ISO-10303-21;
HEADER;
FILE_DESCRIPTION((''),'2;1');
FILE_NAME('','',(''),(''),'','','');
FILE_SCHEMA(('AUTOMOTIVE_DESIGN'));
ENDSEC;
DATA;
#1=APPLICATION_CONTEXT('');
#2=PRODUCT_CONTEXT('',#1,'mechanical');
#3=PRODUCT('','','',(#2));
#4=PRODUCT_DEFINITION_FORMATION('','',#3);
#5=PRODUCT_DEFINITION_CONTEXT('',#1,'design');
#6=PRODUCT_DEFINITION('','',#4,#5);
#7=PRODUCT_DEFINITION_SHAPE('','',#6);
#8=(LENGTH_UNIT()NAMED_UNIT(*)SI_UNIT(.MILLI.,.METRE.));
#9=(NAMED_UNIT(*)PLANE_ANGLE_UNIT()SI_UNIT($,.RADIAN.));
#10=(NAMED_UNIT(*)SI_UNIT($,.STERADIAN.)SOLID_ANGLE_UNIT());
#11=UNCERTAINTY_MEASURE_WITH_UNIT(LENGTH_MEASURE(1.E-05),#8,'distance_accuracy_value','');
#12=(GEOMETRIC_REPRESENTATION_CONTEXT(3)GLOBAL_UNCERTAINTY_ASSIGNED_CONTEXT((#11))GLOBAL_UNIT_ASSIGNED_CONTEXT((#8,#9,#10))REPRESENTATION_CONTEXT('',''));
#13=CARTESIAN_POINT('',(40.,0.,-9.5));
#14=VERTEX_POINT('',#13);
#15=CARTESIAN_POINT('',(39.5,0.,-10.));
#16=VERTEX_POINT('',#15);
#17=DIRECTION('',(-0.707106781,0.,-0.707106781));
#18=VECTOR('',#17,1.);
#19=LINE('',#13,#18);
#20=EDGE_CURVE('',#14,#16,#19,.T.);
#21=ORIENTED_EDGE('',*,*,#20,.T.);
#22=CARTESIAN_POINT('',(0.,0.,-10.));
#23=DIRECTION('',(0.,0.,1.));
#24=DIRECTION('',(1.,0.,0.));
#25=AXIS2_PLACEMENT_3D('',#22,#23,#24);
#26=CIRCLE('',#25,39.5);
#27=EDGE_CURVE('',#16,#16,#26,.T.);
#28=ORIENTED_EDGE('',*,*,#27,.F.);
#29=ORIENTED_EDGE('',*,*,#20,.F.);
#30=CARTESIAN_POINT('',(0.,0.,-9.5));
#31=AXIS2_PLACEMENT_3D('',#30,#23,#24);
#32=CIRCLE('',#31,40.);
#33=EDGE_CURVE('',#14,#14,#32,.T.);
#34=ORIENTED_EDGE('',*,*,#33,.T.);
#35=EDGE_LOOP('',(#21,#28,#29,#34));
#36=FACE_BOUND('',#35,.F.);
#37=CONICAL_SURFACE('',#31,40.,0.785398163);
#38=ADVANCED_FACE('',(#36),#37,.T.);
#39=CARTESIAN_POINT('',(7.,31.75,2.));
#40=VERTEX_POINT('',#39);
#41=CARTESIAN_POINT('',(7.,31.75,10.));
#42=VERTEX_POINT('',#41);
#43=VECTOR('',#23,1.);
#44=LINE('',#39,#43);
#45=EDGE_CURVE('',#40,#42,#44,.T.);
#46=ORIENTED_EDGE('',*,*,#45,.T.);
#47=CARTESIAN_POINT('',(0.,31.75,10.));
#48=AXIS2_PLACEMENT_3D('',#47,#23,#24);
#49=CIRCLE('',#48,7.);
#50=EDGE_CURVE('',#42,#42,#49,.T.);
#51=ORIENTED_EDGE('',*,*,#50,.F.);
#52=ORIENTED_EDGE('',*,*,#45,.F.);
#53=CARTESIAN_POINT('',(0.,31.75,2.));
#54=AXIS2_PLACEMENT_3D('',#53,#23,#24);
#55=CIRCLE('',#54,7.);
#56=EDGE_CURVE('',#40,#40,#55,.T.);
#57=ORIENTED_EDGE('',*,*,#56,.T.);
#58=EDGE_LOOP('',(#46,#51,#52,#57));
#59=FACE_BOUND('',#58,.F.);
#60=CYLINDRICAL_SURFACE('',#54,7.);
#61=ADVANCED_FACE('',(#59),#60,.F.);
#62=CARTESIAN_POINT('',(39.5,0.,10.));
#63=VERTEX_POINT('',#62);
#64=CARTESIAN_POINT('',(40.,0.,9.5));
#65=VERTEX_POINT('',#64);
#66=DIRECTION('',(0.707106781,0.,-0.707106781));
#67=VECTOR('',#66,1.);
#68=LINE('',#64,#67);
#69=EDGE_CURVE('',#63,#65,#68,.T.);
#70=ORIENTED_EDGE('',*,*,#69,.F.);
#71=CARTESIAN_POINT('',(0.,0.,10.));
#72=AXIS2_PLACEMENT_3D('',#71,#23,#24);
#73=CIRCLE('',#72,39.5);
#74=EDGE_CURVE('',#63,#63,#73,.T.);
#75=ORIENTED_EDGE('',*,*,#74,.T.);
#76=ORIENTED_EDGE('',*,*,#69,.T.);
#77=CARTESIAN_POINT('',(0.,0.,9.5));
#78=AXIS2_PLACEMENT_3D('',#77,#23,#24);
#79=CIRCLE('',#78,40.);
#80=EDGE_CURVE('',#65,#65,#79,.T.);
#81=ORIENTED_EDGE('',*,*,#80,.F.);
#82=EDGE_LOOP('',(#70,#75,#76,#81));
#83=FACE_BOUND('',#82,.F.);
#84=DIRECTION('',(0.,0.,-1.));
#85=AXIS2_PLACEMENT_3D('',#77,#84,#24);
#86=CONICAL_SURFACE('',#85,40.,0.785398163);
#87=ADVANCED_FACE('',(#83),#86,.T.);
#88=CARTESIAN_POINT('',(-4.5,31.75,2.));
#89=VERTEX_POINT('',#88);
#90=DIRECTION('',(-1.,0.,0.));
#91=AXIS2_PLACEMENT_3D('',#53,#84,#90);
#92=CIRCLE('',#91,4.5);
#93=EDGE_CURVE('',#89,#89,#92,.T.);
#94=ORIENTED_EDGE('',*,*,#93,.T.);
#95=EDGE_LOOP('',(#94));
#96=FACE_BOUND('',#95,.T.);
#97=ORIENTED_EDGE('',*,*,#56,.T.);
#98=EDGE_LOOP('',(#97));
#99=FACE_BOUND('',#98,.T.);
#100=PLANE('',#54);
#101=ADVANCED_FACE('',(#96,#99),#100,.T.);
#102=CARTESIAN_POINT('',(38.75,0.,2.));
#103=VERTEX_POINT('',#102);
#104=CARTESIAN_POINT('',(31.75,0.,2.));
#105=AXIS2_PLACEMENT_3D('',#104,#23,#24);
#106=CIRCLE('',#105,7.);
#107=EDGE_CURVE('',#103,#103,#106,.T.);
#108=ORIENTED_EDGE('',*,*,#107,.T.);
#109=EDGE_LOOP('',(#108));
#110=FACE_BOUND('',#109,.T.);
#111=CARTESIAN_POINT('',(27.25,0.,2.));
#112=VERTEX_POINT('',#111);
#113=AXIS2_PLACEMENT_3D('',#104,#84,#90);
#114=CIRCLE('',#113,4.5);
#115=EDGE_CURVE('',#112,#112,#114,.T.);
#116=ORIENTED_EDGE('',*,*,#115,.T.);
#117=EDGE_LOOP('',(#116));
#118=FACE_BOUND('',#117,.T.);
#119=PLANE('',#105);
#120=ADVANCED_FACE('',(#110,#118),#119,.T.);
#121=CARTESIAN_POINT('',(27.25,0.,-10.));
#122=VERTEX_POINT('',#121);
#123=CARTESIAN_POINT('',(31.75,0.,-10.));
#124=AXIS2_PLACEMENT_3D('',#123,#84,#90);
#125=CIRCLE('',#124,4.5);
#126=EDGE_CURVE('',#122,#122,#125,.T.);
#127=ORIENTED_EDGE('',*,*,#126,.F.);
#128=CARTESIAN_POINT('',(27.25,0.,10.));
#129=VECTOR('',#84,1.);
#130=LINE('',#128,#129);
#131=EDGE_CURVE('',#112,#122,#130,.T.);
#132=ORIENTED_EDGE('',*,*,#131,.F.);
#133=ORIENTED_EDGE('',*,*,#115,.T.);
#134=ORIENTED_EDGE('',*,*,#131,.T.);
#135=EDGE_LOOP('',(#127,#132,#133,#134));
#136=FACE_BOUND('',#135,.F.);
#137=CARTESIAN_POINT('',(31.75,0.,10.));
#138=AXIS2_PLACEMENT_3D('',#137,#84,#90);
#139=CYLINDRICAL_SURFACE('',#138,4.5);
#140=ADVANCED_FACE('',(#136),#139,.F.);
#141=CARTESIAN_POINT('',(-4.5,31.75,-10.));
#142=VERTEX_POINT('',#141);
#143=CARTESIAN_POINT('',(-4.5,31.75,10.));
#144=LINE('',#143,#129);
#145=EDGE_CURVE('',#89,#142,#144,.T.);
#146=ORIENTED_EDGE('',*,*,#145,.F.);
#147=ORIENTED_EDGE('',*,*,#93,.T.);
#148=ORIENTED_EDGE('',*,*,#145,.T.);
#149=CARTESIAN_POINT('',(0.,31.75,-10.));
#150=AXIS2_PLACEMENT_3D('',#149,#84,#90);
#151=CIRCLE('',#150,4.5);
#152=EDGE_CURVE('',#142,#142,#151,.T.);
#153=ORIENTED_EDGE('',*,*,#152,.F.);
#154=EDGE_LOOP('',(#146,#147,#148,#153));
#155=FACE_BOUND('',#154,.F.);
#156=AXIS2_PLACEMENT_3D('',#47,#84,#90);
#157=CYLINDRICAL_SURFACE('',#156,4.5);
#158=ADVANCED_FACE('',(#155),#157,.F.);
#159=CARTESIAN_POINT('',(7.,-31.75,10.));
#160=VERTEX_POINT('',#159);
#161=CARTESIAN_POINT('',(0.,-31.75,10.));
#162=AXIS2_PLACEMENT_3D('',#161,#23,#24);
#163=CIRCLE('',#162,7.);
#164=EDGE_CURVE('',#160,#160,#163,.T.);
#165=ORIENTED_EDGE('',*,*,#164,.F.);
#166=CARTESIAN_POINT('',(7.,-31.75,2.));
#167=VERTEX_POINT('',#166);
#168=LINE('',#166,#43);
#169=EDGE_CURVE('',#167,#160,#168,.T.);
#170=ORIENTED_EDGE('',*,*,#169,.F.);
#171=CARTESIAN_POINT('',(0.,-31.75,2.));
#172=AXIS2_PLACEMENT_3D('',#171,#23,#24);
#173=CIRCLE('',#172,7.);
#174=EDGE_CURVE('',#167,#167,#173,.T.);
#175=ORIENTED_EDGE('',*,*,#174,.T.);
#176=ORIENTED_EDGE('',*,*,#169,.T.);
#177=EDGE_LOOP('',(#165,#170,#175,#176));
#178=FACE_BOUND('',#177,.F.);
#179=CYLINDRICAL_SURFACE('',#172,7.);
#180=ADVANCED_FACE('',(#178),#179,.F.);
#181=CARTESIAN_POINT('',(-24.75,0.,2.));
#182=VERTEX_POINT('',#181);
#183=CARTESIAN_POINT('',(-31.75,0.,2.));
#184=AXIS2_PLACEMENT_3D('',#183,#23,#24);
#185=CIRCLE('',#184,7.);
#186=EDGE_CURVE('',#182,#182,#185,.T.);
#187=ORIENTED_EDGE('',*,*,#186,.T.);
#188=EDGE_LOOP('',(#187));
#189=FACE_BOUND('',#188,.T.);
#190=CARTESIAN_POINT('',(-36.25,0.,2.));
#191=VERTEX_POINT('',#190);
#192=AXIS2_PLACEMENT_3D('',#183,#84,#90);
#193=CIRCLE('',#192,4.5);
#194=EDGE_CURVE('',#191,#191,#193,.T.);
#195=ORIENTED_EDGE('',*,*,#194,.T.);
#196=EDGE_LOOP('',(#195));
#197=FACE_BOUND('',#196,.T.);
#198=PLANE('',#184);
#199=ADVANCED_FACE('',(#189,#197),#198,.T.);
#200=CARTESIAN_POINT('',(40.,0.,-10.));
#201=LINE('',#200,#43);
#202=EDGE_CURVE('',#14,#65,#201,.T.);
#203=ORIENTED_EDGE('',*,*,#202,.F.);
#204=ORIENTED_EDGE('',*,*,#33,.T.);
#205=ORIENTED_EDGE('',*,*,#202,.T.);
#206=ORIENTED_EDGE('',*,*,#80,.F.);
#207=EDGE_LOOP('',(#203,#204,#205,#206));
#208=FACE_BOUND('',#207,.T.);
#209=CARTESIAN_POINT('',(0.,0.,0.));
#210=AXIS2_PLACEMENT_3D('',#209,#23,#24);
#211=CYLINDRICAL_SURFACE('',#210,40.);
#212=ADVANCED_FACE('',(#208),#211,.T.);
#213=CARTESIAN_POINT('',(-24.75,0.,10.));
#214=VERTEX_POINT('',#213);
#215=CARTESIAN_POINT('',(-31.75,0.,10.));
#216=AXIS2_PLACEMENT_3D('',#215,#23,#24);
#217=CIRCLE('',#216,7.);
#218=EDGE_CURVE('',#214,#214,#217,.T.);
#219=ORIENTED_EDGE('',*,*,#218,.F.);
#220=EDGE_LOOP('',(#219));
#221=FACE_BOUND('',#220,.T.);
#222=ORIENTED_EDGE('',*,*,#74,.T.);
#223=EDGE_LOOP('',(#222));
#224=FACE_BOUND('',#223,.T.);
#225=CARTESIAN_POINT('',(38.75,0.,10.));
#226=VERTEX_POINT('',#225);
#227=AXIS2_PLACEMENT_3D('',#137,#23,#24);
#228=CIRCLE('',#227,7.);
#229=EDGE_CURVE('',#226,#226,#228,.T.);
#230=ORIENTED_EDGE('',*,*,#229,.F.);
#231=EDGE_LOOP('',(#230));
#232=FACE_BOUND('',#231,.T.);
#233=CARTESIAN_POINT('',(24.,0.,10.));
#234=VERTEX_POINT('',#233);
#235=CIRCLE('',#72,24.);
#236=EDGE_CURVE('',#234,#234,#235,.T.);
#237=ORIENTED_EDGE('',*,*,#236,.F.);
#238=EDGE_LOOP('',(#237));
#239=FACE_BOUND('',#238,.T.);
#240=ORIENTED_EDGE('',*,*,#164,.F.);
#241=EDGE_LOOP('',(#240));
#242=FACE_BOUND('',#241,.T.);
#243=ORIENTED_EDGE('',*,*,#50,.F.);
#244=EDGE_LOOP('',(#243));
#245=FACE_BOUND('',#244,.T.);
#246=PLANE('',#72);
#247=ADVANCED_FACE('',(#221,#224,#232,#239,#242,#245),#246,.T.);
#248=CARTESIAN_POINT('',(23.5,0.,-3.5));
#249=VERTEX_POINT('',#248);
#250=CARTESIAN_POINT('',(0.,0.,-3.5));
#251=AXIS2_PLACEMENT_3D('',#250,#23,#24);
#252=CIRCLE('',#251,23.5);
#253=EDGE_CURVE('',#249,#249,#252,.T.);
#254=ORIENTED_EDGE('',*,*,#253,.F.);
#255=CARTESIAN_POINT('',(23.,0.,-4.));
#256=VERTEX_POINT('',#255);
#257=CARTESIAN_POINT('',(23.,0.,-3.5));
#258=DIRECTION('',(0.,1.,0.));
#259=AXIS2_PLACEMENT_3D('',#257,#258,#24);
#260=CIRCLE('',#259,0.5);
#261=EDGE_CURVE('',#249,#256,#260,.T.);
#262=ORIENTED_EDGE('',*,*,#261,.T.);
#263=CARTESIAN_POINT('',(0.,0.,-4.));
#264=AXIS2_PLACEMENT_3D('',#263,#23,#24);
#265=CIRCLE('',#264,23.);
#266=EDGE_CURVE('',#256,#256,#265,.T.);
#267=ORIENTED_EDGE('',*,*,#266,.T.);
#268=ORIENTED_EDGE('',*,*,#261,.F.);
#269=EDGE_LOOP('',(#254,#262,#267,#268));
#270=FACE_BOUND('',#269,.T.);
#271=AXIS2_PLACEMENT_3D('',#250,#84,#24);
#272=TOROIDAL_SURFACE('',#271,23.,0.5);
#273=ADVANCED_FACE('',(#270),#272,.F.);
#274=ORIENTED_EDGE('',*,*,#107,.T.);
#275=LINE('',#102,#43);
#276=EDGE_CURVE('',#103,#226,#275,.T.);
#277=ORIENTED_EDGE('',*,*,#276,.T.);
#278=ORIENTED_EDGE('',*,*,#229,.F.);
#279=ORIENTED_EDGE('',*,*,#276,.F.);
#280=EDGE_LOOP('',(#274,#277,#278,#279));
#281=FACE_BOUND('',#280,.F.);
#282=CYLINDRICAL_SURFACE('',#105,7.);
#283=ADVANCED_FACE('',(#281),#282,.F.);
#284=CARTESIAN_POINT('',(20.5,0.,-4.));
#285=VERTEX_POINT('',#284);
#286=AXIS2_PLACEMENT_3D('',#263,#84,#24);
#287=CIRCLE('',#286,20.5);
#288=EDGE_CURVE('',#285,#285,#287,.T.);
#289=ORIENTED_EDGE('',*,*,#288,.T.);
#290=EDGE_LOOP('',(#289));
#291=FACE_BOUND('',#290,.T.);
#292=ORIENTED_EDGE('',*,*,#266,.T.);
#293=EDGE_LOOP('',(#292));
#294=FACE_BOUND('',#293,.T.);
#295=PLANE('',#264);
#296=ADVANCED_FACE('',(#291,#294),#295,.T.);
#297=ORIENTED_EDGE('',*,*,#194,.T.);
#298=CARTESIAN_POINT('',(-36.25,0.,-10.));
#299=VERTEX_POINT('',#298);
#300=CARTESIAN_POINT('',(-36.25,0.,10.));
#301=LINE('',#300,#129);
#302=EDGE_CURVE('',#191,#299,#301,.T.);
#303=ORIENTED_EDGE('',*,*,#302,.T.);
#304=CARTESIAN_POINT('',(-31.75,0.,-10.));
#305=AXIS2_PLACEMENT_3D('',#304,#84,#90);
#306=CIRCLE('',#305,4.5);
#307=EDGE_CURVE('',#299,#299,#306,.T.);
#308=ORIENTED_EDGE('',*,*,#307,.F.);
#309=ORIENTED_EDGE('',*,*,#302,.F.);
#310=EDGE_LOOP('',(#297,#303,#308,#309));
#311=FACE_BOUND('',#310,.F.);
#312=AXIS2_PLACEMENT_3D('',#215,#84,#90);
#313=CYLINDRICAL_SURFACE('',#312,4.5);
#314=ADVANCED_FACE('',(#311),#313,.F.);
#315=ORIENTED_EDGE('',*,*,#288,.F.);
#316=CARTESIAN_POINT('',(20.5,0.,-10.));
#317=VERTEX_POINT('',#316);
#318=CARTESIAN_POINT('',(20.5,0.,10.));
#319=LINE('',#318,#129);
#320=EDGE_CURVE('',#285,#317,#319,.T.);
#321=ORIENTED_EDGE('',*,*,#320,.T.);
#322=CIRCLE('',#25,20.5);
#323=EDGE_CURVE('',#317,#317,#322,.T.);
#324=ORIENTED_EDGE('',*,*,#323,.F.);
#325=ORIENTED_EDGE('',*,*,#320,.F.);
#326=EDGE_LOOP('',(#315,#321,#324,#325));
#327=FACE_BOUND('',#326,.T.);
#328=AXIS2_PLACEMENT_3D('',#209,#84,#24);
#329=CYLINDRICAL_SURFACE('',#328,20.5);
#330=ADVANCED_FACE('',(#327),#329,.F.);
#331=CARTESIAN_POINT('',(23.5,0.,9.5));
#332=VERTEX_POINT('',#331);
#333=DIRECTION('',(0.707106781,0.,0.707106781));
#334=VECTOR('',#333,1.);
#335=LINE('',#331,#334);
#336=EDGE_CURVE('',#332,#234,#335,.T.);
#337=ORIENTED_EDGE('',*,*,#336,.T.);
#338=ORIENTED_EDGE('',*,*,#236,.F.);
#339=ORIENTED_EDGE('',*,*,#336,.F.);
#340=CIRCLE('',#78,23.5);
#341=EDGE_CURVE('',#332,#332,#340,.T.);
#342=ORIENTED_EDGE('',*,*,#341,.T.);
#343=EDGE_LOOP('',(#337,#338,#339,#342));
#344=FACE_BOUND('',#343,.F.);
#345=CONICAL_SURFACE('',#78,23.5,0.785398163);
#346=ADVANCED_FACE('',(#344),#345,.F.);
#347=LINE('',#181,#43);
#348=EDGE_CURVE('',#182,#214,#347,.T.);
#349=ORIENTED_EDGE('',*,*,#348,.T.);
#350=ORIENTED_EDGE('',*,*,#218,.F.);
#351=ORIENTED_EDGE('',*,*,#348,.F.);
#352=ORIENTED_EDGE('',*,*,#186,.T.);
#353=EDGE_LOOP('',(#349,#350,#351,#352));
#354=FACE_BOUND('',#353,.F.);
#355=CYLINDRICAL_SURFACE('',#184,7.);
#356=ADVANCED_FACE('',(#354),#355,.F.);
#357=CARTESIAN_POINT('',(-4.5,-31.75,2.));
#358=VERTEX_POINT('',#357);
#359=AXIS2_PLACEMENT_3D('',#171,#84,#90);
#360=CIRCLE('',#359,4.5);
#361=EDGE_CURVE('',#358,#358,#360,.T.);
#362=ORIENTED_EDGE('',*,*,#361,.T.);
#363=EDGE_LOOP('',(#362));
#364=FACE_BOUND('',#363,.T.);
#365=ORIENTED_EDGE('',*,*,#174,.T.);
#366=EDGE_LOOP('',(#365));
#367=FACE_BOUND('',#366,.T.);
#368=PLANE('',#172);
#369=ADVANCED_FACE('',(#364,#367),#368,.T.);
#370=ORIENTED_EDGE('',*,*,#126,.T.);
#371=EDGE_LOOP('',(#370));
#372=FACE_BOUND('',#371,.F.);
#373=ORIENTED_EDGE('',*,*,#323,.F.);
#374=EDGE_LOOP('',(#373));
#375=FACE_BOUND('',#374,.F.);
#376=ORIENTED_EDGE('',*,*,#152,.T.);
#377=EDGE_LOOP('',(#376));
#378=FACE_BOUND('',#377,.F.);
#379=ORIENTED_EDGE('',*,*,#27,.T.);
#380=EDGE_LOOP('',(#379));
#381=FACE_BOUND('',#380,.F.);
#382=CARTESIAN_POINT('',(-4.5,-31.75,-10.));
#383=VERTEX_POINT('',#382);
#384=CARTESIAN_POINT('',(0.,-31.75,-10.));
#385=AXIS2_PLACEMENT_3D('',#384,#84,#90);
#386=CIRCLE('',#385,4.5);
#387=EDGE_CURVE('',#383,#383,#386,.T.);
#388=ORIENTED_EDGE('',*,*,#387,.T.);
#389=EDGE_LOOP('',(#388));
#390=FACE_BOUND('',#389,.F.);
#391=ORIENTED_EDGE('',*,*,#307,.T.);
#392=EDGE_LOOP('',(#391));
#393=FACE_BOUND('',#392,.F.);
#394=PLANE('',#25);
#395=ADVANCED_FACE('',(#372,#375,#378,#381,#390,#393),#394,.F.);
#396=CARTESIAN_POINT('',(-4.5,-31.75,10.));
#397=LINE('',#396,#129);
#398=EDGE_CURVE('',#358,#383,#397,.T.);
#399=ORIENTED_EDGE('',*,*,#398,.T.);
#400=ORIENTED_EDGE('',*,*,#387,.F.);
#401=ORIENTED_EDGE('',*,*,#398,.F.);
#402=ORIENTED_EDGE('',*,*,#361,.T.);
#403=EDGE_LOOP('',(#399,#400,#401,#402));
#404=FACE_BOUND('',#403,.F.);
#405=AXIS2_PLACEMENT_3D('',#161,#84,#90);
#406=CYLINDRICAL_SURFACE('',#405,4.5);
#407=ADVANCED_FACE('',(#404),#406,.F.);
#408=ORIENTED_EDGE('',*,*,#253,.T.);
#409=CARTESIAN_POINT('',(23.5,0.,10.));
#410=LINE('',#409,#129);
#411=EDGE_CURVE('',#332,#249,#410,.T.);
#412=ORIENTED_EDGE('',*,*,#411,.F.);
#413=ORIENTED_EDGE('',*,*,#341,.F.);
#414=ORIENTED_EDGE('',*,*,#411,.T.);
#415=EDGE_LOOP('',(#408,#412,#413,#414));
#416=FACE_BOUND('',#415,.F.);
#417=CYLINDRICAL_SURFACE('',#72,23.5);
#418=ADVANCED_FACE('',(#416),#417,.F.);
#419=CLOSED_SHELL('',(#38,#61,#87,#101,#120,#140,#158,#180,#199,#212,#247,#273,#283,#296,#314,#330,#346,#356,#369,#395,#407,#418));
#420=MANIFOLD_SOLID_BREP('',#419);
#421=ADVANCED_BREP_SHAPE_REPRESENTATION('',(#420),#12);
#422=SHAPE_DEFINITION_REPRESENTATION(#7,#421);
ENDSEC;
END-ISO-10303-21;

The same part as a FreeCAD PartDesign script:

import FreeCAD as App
import Part
import Sketcher
from FreeCAD import Vector
Q = App.Units.Quantity


def edges_at(feature, points):
    """Names of the edges that pass closest to the given points."""
    edges = feature.Shape.Edges
    near = lambda p: min(range(len(edges)), key=lambda i: edges[i].distToShape(Part.Vertex(*p))[0])
    return sorted({f"Edge{near(p) + 1}" for p in points})

doc = App.newDocument("Part")
body = doc.addObject("PartDesign::Body", "Body")

sketch1 = body.newObject("Sketcher::SketchObject", "Sketch")
sketch1.AttachmentSupport = (doc.getObject("XY_Plane"), [""])
sketch1.MapMode = "FlatFace"
sketch1.addGeometry([
    Part.Circle(Vector(0, 0, 0), Vector(0, 0, 1), 40),
    Part.Circle(Vector(0, 0, 0), Vector(0, 0, 1), 20),
], False)
sketch1.addConstraint([
    Sketcher.Constraint("Coincident", 0, 3, -1, 1),
    Sketcher.Constraint("Coincident", 1, 3, -1, 1),
    Sketcher.Constraint("Diameter", 0, Q("80 mm")),
    Sketcher.Constraint("Diameter", 1, Q("41 mm")),
])
pad1 = body.newObject("PartDesign::Pad", "Pad")
pad1.Profile = sketch1
pad1.Length = 20
pad1.Midplane = True

sketch2 = body.newObject("Sketcher::SketchObject", "Sketch001")
sketch2.AttachmentSupport = (doc.getObject("XY_Plane"), [""])
sketch2.MapMode = "FlatFace"
sketch2.AttachmentOffset = App.Placement(Vector(0, 0, 10), App.Rotation())
sketch2.addGeometry(Part.Circle(Vector(0, 0, 0), Vector(0, 0, 1), 24), False)
sketch2.addConstraint([
    Sketcher.Constraint("Coincident", 0, 3, -1, 1),
    Sketcher.Constraint("Diameter", 0, Q("47 mm")),
])
pocket1 = body.newObject("PartDesign::Pocket", "Pocket")
pocket1.Profile = sketch2
pocket1.Length = 14
doc.recompute()

fillet = body.newObject("PartDesign::Fillet", "Fillet")
fillet.Base = (pocket1, edges_at(pocket1, [(-23.5, 0, -4)]))
fillet.Radius = 0.5
doc.recompute()

chamfer = body.newObject("PartDesign::Chamfer", "Chamfer")
chamfer.Base = (fillet, edges_at(fillet, [(-23.5, 0, 10), (-40, 0, 10), (-40, 0, -10)]))
chamfer.Size = 0.5

sketch3 = body.newObject("Sketcher::SketchObject", "Sketch002")
sketch3.AttachmentSupport = (doc.getObject("XY_Plane"), [""])
sketch3.MapMode = "FlatFace"
sketch3.AttachmentOffset = App.Placement(Vector(0, 0, 10), App.Rotation())
sketch3.addGeometry([
    Part.Circle(Vector(0, 31.8, 0), Vector(0, 0, 1), 4.5),
    Part.Circle(Vector(0, -31.8, 0), Vector(0, 0, 1), 4.5),
    Part.Circle(Vector(31.8, 0, 0), Vector(0, 0, 1), 4.5),
    Part.Circle(Vector(-31.8, 0, 0), Vector(0, 0, 1), 4.5),
], False)
sketch3.addConstraint([
    Sketcher.Constraint("Equal", 0, 1),
    Sketcher.Constraint("Equal", 1, 2),
    Sketcher.Constraint("Equal", 2, 3),
    Sketcher.Constraint("Symmetric", 0, 3, 1, 3, -1, 1),
    Sketcher.Constraint("Symmetric", 2, 3, 3, 3, -1, 1),
    Sketcher.Constraint("PointOnObject", 0, 3, -2),
    Sketcher.Constraint("PointOnObject", 2, 3, -1),
    Sketcher.Constraint("Diameter", 0, Q("9 mm")),
    Sketcher.Constraint("DistanceY", 1, 3, 0, 3, Q("63.5 mm")),
    Sketcher.Constraint("DistanceX", 3, 3, 2, 3, Q("63.5 mm")),
])
doc.recompute()
hole = body.newObject("PartDesign::Hole", "Hole")
hole.Profile = sketch3
hole.ThreadType = "None"
hole.Diameter = 9
hole.DepthType = "ThroughAll"
hole.HoleCutType = "Counterbore"
hole.HoleCutDiameter = 14
hole.HoleCutDepth = 8

doc.recompute()
